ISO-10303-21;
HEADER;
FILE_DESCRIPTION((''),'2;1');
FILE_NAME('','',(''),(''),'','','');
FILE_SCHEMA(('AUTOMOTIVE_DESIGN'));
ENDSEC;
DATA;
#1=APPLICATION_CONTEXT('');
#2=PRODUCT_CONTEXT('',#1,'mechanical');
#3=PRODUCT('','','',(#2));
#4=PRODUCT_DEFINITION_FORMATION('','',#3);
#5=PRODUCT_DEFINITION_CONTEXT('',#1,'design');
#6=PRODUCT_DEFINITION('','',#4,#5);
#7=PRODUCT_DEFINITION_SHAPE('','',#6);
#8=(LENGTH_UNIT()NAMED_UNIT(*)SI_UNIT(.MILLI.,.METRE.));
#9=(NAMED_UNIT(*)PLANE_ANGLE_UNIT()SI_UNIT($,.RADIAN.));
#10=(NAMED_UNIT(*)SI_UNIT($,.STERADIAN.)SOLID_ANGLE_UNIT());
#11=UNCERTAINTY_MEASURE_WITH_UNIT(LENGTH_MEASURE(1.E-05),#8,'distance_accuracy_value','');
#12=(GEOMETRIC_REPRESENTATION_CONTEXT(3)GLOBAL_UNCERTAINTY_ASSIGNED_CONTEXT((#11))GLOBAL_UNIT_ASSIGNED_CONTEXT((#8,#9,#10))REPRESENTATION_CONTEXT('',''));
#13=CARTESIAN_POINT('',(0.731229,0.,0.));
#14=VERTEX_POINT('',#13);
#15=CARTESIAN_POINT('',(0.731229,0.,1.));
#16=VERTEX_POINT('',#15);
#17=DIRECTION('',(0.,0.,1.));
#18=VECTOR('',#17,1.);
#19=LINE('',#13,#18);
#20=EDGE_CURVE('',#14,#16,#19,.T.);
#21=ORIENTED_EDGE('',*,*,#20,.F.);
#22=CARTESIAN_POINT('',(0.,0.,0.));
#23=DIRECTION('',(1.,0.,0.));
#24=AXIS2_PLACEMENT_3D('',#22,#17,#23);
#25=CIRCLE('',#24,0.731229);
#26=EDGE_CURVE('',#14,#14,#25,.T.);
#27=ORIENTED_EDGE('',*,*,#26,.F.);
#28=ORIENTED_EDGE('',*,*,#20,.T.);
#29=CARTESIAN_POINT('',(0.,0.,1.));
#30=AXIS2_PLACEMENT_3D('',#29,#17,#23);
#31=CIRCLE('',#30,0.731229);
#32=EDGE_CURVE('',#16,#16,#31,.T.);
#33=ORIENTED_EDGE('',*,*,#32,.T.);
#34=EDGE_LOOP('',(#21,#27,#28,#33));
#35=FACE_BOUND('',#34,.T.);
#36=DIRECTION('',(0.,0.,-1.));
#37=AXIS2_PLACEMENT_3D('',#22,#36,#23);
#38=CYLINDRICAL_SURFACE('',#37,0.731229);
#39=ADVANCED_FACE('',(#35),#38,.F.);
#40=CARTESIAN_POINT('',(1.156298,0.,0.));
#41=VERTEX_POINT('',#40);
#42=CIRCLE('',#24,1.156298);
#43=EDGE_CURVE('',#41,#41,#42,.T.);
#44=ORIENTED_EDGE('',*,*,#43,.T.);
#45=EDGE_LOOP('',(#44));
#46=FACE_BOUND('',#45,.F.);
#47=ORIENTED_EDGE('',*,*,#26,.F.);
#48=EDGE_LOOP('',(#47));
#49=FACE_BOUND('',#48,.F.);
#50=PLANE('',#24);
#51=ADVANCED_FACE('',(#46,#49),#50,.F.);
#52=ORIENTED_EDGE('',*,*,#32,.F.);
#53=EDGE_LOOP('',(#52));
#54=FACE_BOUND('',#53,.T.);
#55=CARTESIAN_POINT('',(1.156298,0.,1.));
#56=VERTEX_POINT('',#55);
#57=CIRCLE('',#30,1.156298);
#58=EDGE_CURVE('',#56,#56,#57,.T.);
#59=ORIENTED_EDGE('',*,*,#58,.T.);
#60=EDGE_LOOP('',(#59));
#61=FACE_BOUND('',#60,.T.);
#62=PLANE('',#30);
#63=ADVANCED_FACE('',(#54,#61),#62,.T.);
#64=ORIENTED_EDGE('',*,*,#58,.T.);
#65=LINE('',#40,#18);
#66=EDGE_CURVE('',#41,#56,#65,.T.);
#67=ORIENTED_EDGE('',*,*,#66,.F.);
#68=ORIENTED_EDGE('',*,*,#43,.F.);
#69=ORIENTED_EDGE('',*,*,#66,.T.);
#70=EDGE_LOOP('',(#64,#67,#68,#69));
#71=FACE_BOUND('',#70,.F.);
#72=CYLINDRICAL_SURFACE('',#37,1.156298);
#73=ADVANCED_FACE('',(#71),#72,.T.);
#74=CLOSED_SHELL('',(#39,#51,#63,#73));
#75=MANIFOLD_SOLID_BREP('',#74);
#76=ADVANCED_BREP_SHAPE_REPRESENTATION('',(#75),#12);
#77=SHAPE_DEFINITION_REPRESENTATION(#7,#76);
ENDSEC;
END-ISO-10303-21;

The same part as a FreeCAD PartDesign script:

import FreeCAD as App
import Part
import Sketcher

doc = App.newDocument("Part")
body = doc.addObject("PartDesign::Body", "Body")

# Sketch on XY plane
sketch1 = body.newObject("Sketcher::SketchObject", "Sketch")
sketch1.AttachmentSupport = (doc.getObject("XY_Plane"), [""])
sketch1.MapMode = "FlatFace"
sketch1.addGeometry([
    Part.Circle(App.Vector(0, 0, 0), App.Vector(0, 0, 1), 1.2),
    Part.Circle(App.Vector(0, 0, 0), App.Vector(0, 0, 1), 0.7),
], False)
sketch1.addConstraint([
    Sketcher.Constraint("Coincident", 0, 3, -1, 1),
    Sketcher.Constraint("Coincident", 1, 3, -1, 1),
    Sketcher.Constraint("Diameter", 0, 2.312596),
    Sketcher.Constraint("Diameter", 1, 1.462458),
])
pad1 = body.newObject("PartDesign::Pad", "Pad")
pad1.Profile = sketch1
pad1.Length = 1

doc.recompute()
